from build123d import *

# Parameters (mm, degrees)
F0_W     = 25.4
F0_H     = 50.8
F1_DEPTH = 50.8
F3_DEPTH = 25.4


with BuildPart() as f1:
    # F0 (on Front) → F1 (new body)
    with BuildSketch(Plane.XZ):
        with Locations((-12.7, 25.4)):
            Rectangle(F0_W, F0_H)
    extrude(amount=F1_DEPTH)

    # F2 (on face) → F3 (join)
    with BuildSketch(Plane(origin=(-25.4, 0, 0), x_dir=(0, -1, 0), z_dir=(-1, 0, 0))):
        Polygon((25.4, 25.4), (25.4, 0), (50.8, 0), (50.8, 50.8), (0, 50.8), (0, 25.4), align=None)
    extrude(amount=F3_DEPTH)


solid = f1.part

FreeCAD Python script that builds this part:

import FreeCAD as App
import Part
import Sketcher
from FreeCAD import Vector
Q = App.Units.Quantity

doc = App.newDocument("Part")
body = doc.addObject("PartDesign::Body", "Body")

# Sketch on XZ plane
sketch1 = body.newObject("Sketcher::SketchObject", "Sketch")
sketch1.AttachmentSupport = (doc.getObject("XZ_Plane"), [""])
sketch1.MapMode = "FlatFace"
sketch1.addGeometry([
    Part.LineSegment(Vector(-25, 51, 0), Vector(-25, 0, 0)),
    Part.LineSegment(Vector(-25, 0, 0), Vector(0, 0, 0)),
    Part.LineSegment(Vector(0, 0, 0), Vector(0, 51, 0)),
    Part.LineSegment(Vector(0, 51, 0), Vector(-25, 51, 0)),
], False)
sketch1.addConstraint([
    Sketcher.Constraint("Coincident", 0, 2, 1, 1),
    Sketcher.Constraint("Coincident", 1, 2, 2, 1),
    Sketcher.Constraint("Coincident", 2, 2, 3, 1),
    Sketcher.Constraint("Coincident", 3, 2, 0, 1),
    Sketcher.Constraint("Vertical", 0),
    Sketcher.Constraint("Horizontal", 1),
    Sketcher.Constraint("Vertical", 2),
    Sketcher.Constraint("Horizontal", 3),
    Sketcher.Constraint("Coincident", 1, 2, -1, 1),
    Sketcher.Constraint("DistanceX", 1, 1, 1, 2, Q("1 in")),
    Sketcher.Constraint("DistanceY", 0, 2, 0, 1, Q("2 in")),
])
pad1 = body.newObject("PartDesign::Pad", "Pad")
pad1.Profile = sketch1
pad1.Length = Q("2 in")

# Sketch on YZ plane
sketch2 = body.newObject("Sketcher::SketchObject", "Sketch001")
sketch2.AttachmentSupport = (doc.getObject("YZ_Plane"), [""])
sketch2.MapMode = "FlatFace"
sketch2.AttachmentOffset = App.Placement(Vector(0, 0, -1 * 25.4), App.Rotation())
sketch2.addGeometry([
    Part.LineSegment(Vector(-25, 25, 0), Vector(-25, 0, 0)),  # 0
    Part.LineSegment(Vector(-25, 0, 0), Vector(-51, 0, 0)),  # 1
    Part.LineSegment(Vector(-51, 0, 0), Vector(-51, 51, 0)),  # 2
    Part.LineSegment(Vector(-51, 51, 0), Vector(0, 51, 0)),  # 3
    Part.LineSegment(Vector(0, 51, 0), Vector(0, 25, 0)),  # 4
    Part.LineSegment(Vector(0, 25, 0), Vector(-25, 25, 0)),  # 5
], False)
sketch2.addConstraint([
    Sketcher.Constraint("Coincident", 0, 2, 1, 1),
    Sketcher.Constraint("Coincident", 1, 2, 2, 1),
    Sketcher.Constraint("Coincident", 2, 2, 3, 1),
    Sketcher.Constraint("Coincident", 3, 2, 4, 1),
    Sketcher.Constraint("Coincident", 4, 2, 5, 1),
    Sketcher.Constraint("Coincident", 5, 2, 0, 1),
    Sketcher.Constraint("Vertical", 0),
    Sketcher.Constraint("Horizontal", 1),
    Sketcher.Constraint("Vertical", 2),
    Sketcher.Constraint("Horizontal", 3),
    Sketcher.Constraint("Vertical", 4),
    Sketcher.Constraint("Horizontal", 5),
    Sketcher.Constraint("PointOnObject", 0, 2, -1),
    Sketcher.Constraint("PointOnObject", 3, 2, -2),
    Sketcher.Constraint("Equal", 1, 5),
    Sketcher.Constraint("Equal", 5, 0),
    Sketcher.Constraint("Equal", 3, 2),
    Sketcher.Constraint("DistanceX", 1, 2, 1, 1, Q("1 in")),
])
pad2 = body.newObject("PartDesign::Pad", "Pad001")
pad2.Profile = sketch2
pad2.Length = Q("1 in")
pad2.Reversed = True

doc.recompute()
